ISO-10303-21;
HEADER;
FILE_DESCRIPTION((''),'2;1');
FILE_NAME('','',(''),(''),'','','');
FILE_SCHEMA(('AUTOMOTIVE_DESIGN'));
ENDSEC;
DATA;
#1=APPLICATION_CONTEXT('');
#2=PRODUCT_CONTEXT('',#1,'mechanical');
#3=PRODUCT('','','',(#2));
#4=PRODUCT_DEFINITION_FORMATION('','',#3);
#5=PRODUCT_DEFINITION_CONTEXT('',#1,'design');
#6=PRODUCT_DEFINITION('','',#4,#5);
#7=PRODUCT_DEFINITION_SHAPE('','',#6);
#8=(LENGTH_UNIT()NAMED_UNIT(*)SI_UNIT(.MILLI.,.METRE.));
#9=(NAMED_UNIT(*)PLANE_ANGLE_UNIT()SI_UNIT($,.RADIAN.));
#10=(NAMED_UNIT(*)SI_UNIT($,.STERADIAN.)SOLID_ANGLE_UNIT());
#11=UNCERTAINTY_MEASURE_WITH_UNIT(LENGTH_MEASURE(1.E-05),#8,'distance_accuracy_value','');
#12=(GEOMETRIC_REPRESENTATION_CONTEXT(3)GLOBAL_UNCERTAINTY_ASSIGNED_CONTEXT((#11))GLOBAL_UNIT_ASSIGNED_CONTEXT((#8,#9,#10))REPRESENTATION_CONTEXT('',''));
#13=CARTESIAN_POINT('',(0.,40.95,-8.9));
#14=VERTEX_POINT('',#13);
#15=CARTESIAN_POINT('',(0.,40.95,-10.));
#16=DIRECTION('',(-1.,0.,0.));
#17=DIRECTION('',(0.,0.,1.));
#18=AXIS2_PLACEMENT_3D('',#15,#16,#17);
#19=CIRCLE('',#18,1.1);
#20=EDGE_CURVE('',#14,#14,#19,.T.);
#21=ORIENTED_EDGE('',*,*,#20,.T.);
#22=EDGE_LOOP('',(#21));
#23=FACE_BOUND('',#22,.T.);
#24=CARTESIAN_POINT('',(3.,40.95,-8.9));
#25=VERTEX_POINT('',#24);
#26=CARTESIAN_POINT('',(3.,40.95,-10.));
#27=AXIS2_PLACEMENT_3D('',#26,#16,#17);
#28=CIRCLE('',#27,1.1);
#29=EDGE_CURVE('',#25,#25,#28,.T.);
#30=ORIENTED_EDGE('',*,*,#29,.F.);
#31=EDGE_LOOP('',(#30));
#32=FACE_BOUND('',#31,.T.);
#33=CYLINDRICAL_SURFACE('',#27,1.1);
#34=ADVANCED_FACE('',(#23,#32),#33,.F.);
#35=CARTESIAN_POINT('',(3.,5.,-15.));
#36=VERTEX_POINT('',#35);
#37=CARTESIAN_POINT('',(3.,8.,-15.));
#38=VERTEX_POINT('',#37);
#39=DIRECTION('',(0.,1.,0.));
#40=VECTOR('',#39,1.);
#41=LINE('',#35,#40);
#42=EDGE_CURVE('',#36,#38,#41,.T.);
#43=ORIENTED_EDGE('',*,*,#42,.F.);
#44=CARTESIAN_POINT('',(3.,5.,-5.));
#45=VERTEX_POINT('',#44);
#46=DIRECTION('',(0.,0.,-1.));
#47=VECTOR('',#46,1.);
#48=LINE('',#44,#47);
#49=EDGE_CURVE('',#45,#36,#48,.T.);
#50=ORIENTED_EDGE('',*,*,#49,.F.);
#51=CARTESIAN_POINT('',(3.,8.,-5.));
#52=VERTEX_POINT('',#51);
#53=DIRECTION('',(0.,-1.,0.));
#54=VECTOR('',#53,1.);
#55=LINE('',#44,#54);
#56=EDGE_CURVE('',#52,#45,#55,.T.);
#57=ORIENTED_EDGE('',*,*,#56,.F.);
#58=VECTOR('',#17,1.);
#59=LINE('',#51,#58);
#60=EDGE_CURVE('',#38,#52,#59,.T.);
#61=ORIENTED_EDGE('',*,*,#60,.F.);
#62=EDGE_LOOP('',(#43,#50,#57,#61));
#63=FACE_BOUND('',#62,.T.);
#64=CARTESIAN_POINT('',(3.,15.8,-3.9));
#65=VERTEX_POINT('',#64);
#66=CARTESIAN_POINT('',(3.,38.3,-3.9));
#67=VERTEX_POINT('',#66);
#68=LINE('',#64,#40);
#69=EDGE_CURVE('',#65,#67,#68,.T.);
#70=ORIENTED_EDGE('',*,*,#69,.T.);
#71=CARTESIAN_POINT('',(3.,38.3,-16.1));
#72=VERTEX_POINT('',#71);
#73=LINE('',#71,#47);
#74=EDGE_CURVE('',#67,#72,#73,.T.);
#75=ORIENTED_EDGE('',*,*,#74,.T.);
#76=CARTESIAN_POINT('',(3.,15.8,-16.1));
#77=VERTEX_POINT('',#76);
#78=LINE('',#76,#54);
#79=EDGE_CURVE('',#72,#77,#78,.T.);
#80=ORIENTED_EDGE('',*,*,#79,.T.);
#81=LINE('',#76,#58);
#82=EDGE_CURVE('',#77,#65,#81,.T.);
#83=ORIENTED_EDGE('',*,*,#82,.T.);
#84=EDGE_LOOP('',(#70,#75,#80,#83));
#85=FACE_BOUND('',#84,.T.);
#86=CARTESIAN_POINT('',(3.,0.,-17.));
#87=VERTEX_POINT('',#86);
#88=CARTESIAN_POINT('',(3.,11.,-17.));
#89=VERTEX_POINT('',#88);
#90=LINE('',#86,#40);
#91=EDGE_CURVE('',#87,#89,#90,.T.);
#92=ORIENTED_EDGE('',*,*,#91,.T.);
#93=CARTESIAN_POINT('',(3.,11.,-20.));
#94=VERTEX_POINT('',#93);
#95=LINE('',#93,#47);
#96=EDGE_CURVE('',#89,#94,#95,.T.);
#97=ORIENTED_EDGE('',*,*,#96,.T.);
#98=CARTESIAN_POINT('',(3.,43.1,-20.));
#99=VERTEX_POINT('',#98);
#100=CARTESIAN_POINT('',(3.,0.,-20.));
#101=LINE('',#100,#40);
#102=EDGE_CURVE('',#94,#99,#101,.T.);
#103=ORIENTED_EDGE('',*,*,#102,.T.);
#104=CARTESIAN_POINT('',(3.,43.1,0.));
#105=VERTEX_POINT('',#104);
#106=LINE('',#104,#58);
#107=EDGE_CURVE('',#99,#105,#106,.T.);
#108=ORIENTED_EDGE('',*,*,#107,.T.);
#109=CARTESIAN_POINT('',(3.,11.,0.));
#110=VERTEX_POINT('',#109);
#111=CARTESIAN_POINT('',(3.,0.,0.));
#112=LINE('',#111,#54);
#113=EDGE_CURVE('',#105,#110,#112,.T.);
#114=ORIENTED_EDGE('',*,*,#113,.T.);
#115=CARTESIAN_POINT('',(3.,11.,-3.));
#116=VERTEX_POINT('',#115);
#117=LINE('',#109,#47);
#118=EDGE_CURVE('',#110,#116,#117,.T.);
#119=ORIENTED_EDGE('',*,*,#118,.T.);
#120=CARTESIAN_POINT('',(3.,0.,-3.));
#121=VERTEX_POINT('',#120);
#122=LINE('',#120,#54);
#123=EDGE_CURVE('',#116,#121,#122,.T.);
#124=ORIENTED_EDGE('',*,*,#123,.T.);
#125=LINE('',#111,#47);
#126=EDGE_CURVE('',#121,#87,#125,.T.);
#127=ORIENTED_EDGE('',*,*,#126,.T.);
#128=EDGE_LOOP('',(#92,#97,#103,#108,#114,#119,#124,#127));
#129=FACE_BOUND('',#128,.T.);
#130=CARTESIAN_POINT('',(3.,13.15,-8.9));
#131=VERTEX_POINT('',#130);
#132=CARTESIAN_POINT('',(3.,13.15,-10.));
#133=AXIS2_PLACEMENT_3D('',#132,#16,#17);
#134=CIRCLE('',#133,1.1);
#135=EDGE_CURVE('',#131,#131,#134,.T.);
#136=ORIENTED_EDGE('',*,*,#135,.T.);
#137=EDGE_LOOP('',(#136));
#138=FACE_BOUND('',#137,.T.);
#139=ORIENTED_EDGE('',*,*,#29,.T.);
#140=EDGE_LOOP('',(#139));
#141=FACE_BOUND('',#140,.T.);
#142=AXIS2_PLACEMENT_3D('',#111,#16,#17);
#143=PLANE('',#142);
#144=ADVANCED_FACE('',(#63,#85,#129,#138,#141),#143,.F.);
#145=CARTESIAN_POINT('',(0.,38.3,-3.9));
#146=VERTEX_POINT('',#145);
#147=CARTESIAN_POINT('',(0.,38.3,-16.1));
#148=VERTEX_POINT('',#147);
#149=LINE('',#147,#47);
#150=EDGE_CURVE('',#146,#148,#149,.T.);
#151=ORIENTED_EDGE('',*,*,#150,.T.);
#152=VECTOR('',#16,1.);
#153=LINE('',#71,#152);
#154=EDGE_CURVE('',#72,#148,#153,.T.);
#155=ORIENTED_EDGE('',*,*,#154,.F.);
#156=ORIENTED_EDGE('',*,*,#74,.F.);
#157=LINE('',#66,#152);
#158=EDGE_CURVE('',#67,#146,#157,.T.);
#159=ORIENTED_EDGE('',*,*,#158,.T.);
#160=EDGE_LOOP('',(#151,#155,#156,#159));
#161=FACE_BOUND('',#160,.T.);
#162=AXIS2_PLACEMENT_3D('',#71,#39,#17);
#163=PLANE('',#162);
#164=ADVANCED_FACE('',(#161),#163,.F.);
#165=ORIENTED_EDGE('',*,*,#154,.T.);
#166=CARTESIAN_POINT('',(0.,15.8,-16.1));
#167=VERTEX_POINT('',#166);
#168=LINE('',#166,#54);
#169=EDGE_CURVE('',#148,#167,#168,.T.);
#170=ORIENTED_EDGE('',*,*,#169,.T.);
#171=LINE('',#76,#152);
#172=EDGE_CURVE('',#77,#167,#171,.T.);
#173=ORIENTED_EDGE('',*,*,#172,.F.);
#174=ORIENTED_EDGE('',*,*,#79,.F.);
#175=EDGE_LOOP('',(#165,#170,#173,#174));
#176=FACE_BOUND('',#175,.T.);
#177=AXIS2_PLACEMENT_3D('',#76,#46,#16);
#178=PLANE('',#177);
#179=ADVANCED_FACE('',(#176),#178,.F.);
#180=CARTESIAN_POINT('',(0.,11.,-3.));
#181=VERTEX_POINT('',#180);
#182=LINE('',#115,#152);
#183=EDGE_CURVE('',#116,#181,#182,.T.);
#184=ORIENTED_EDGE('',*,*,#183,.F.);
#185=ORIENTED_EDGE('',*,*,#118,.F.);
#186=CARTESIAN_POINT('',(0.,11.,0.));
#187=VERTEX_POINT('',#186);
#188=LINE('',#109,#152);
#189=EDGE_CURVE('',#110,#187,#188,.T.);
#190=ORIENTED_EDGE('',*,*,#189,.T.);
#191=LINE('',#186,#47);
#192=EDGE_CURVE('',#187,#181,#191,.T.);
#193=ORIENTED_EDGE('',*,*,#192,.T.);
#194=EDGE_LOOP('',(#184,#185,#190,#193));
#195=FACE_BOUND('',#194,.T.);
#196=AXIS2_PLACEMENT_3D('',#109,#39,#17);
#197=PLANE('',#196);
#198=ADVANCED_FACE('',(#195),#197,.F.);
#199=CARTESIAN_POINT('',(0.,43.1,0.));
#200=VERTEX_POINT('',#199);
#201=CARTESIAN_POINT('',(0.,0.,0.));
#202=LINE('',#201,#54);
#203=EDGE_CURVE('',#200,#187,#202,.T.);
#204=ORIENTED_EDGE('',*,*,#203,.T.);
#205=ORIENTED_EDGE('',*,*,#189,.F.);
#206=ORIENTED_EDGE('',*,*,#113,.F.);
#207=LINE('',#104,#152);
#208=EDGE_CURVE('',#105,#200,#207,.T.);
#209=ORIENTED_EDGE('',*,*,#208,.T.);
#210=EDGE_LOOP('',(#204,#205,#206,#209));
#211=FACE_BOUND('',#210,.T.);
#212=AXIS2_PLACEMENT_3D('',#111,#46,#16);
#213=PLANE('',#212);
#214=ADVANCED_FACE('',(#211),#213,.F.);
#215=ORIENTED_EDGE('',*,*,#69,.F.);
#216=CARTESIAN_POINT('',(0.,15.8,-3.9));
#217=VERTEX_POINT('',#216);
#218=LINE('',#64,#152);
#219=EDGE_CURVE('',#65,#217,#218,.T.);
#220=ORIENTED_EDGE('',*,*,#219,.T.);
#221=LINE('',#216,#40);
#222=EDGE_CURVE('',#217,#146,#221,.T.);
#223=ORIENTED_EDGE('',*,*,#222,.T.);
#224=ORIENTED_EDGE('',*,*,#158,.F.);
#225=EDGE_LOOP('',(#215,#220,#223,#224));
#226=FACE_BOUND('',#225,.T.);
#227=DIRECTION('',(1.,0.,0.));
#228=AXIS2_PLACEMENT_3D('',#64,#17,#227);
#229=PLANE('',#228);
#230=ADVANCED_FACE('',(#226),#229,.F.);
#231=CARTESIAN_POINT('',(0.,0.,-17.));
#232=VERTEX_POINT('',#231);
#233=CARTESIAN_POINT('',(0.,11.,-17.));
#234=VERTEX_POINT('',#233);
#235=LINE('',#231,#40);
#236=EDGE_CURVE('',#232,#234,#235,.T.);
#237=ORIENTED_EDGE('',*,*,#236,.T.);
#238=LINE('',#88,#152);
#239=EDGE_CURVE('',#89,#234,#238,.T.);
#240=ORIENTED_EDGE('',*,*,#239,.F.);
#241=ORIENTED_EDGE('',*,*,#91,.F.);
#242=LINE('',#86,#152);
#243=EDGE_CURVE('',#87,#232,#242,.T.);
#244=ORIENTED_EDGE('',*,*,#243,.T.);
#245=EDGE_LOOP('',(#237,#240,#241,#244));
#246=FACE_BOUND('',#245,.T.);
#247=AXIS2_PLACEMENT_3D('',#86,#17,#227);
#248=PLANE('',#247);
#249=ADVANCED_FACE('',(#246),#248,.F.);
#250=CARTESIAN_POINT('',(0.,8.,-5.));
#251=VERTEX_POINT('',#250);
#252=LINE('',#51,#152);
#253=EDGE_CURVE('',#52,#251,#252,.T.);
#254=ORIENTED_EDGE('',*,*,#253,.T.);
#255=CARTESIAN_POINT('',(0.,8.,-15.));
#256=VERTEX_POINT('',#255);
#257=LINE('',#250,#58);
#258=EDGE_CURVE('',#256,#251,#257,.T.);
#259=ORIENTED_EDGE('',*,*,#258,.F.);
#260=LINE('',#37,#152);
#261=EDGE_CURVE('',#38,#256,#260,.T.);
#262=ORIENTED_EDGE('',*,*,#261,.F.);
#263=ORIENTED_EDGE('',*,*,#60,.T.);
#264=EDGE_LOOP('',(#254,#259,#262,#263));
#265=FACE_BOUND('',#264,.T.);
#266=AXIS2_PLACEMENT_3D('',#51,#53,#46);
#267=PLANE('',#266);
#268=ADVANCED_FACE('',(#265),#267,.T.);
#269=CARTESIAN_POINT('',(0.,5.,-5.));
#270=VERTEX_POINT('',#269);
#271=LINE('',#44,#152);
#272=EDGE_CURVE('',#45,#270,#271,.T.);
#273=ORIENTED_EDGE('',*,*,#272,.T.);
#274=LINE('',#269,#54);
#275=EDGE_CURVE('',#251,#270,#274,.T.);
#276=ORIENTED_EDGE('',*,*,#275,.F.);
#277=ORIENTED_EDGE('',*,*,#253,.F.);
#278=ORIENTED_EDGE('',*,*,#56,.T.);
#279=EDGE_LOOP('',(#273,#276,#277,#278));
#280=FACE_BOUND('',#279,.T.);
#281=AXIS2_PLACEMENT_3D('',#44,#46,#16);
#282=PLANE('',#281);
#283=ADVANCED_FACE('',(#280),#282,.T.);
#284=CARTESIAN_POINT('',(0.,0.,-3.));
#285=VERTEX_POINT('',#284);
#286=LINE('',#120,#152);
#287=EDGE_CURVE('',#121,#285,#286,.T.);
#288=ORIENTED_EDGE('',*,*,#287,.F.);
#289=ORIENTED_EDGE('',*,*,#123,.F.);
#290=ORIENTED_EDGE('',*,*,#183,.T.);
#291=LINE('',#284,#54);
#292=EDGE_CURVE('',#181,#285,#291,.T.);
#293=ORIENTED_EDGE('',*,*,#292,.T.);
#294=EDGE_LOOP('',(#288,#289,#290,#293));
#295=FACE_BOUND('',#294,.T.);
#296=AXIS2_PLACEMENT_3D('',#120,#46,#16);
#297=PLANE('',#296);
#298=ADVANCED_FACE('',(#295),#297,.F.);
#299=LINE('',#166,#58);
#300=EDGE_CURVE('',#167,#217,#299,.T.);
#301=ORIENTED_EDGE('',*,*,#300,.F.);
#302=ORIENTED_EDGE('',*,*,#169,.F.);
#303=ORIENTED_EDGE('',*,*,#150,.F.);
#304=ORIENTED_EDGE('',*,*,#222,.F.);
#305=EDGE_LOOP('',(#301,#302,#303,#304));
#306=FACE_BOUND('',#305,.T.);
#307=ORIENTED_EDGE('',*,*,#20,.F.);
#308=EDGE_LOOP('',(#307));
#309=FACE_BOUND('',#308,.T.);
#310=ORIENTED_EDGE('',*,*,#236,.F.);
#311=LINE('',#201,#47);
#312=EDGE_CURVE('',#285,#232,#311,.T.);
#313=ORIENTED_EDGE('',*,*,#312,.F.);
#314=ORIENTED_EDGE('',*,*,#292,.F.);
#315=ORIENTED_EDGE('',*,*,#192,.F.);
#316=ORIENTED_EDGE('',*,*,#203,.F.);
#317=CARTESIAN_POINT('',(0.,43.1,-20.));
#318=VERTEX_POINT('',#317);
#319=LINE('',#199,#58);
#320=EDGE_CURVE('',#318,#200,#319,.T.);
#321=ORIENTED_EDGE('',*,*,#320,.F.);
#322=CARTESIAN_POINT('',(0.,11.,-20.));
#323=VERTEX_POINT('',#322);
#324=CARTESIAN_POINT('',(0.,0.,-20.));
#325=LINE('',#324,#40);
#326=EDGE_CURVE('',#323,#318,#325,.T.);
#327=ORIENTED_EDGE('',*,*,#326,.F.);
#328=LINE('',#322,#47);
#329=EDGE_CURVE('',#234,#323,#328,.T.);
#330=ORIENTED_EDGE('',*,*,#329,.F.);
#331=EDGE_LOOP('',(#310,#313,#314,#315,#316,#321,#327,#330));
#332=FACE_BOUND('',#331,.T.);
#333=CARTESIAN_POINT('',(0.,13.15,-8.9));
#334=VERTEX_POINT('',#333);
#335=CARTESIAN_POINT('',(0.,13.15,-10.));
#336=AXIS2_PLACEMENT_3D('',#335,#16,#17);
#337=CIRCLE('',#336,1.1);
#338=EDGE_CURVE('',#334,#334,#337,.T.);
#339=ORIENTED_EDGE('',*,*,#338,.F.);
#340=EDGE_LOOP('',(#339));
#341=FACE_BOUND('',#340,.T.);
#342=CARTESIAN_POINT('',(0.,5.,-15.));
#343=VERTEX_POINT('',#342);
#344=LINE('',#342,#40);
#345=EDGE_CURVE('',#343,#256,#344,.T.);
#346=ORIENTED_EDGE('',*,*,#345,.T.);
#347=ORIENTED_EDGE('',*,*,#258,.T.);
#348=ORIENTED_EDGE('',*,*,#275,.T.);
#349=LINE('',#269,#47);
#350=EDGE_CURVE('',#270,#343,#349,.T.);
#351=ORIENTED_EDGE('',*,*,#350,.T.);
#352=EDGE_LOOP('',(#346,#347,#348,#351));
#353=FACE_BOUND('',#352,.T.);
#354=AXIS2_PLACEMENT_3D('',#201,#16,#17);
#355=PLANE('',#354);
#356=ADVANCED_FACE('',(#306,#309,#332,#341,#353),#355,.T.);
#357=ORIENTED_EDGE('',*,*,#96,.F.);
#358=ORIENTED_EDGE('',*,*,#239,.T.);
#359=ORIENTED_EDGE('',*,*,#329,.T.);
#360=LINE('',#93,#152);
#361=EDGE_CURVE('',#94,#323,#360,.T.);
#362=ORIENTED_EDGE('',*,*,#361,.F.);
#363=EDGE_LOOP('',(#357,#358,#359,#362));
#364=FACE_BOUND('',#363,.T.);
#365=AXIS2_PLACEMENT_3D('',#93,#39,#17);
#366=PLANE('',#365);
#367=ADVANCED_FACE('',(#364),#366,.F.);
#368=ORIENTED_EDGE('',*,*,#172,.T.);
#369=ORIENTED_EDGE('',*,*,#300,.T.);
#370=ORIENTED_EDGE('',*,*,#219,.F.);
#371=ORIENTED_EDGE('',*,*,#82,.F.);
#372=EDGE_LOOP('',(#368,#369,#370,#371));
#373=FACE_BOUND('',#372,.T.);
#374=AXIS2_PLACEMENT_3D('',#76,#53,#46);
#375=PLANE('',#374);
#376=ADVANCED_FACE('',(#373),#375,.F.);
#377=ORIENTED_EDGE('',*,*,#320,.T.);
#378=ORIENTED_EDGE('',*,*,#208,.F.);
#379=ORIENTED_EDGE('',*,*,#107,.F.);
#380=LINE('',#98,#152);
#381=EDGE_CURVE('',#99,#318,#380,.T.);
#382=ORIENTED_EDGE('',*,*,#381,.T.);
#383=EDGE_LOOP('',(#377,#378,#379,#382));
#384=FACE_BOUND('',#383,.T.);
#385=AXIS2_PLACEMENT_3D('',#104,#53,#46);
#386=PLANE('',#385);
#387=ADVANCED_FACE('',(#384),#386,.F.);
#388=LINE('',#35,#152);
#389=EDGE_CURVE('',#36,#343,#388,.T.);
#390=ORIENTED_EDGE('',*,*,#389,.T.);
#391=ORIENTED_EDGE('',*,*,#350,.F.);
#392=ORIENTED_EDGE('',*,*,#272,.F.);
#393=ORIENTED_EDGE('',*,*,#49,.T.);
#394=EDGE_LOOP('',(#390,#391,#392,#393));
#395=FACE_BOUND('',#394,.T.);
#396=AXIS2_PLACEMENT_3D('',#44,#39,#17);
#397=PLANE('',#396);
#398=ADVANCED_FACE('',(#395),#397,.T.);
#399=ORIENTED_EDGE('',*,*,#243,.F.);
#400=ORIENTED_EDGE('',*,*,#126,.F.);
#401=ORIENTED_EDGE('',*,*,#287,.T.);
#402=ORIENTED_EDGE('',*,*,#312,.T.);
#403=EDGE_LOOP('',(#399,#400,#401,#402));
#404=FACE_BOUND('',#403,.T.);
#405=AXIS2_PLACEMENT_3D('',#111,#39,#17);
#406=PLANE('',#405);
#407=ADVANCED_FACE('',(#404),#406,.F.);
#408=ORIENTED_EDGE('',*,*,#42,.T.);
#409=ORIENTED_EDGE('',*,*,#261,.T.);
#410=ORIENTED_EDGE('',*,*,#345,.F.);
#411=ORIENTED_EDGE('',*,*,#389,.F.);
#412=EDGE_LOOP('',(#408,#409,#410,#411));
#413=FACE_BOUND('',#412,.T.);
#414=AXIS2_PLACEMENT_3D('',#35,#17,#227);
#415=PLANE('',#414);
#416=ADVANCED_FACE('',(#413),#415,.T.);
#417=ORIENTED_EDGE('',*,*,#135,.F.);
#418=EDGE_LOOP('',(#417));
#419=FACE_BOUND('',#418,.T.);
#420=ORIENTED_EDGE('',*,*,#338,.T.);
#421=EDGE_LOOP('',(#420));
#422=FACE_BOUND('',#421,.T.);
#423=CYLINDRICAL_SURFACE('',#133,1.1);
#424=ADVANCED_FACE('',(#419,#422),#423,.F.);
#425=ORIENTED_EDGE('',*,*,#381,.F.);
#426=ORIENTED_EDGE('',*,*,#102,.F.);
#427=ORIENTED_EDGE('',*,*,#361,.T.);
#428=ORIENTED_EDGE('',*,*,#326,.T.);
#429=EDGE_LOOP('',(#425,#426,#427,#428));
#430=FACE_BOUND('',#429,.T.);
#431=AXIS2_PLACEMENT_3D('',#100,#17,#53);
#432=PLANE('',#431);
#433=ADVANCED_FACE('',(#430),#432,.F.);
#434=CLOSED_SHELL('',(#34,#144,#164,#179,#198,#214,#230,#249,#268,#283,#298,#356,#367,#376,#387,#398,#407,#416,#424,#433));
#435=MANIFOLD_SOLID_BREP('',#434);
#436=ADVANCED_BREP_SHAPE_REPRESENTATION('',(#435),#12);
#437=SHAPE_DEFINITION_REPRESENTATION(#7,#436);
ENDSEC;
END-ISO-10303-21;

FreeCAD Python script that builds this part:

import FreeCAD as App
import Part
import Sketcher
Q = App.Units.Quantity

doc = App.newDocument("Part")
body = doc.addObject("PartDesign::Body", "Body")

sketch1 = body.newObject("Sketcher::SketchObject", "Sketch")
sketch1.AttachmentSupport = (doc.getObject("YZ_Plane"), [""])
sketch1.MapMode = "FlatFace"
sketch1.addGeometry(Part.LineSegment(App.Vector(43.1, 0, 0), App.Vector(0, 0, 0)), False)
sketch1.addGeometry(Part.LineSegment(App.Vector(0, 0, 0), App.Vector(0, -20, 0)), False)
sketch1.addGeometry(Part.LineSegment(App.Vector(0, -20, 0), App.Vector(43.1, -20, 0)), False)
sketch1.addGeometry(Part.LineSegment(App.Vector(43.1, -20, 0), App.Vector(43.1, 0, 0)), False)
sketch1.addGeometry(Part.LineSegment(App.Vector(5, -15, 0), App.Vector(5, -5, 0)), False)
sketch1.addGeometry(Part.LineSegment(App.Vector(5, -5, 0), App.Vector(8, -5, 0)), False)
sketch1.addGeometry(Part.LineSegment(App.Vector(8, -5, 0), App.Vector(8, -15, 0)), False)
sketch1.addGeometry(Part.LineSegment(App.Vector(8, -15, 0), App.Vector(5, -15, 0)), False)
sketch1.addConstraint(Sketcher.Constraint("Coincident", 0, 2, 1, 1))
sketch1.addConstraint(Sketcher.Constraint("Coincident", 1, 2, 2, 1))
sketch1.addConstraint(Sketcher.Constraint("Coincident", 2, 2, 3, 1))
sketch1.addConstraint(Sketcher.Constraint("Coincident", 3, 2, 0, 1))
sketch1.addConstraint(Sketcher.Constraint("Coincident", 4, 2, 5, 1))
sketch1.addConstraint(Sketcher.Constraint("Coincident", 5, 2, 6, 1))
sketch1.addConstraint(Sketcher.Constraint("Coincident", 6, 2, 7, 1))
sketch1.addConstraint(Sketcher.Constraint("Coincident", 7, 2, 4, 1))
sketch1.addConstraint(Sketcher.Constraint("Horizontal", 0))
sketch1.addConstraint(Sketcher.Constraint("Vertical", 1))
sketch1.addConstraint(Sketcher.Constraint("Horizontal", 2))
sketch1.addConstraint(Sketcher.Constraint("Vertical", 3))
sketch1.addConstraint(Sketcher.Constraint("Vertical", 4))
sketch1.addConstraint(Sketcher.Constraint("Horizontal", 5))
sketch1.addConstraint(Sketcher.Constraint("Vertical", 6))
sketch1.addConstraint(Sketcher.Constraint("Horizontal", 7))
sketch1.addConstraint(Sketcher.Constraint("Coincident", 0, 2, -1, 1))
sketch1.addConstraint(Sketcher.Constraint("DistanceX", 5, 1, 5, 2, Q("3 mm")))
sketch1.addConstraint(Sketcher.Constraint("DistanceY", 1, 2, 1, 1, Q("20 mm")))
sketch1.addConstraint(Sketcher.Constraint("DistanceY", 4, 1, 4, 2, Q("10 mm")))
sketch1.addConstraint(Sketcher.Constraint("DistanceX", 0, 2, 0, 1, Q("43.1 mm")))
sketch1.addConstraint(Sketcher.Constraint("DistanceX", -1, 1, 4, 2, Q("5 mm")))
sketch1.addConstraint(Sketcher.Constraint("DistanceY", 4, 2, -1, 1, Q("5 mm")))
pad1 = body.newObject("PartDesign::Pad", "Pad")
pad1.Profile = sketch1
pad1.Length = 3

sketch2 = body.newObject("Sketcher::SketchObject", "Sketch001")
sketch2.AttachmentSupport = (doc.getObject("YZ_Plane"), [""])
sketch2.MapMode = "FlatFace"
sketch2.addGeometry(Part.Circle(App.Vector(41, -10, 0), App.Vector(0, 0, 1), 1.1), False)
sketch2.addGeometry(Part.Circle(App.Vector(13.2, -10, 0), App.Vector(0, 0, 1), 1.1), False)
sketch2.addGeometry(Part.LineSegment(App.Vector(38.3, -16.1, 0), App.Vector(15.8, -16.1, 0)), False)
sketch2.addGeometry(Part.LineSegment(App.Vector(15.8, -16.1, 0), App.Vector(15.8, -3.9, 0)), False)
sketch2.addGeometry(Part.LineSegment(App.Vector(15.8, -3.9, 0), App.Vector(38.3, -3.9, 0)), False)
sketch2.addGeometry(Part.LineSegment(App.Vector(38.3, -3.9, 0), App.Vector(38.3, -16.1, 0)), False)
sketch2.addGeometry(Part.LineSegment(App.Vector(11, -20, 0), App.Vector(0, -20, 0)), False)
sketch2.addGeometry(Part.LineSegment(App.Vector(0, -20, 0), App.Vector(0, -17, 0)), False)
sketch2.addGeometry(Part.LineSegment(App.Vector(0, -17, 0), App.Vector(11, -17, 0)), False)
sketch2.addGeometry(Part.LineSegment(App.Vector(11, -17, 0), App.Vector(11, -20, 0)), False)
sketch2.addGeometry(Part.LineSegment(App.Vector(11, -3, 0), App.Vector(0, -3, 0)), False)
sketch2.addGeometry(Part.LineSegment(App.Vector(0, -3, 0), App.Vector(0, 0, 0)), False)
sketch2.addGeometry(Part.LineSegment(App.Vector(0, 0, 0), App.Vector(11, 0, 0)), False)
sketch2.addGeometry(Part.LineSegment(App.Vector(11, 0, 0), App.Vector(11, -3, 0)), False)
sketch2.addConstraint(Sketcher.Constraint("Coincident", 2, 2, 3, 1))
sketch2.addConstraint(Sketcher.Constraint("Coincident", 3, 2, 4, 1))
sketch2.addConstraint(Sketcher.Constraint("Coincident", 4, 2, 5, 1))
sketch2.addConstraint(Sketcher.Constraint("Coincident", 5, 2, 2, 1))
sketch2.addConstraint(Sketcher.Constraint("Coincident", 6, 2, 7, 1))
sketch2.addConstraint(Sketcher.Constraint("Coincident", 7, 2, 8, 1))
sketch2.addConstraint(Sketcher.Constraint("Coincident", 8, 2, 9, 1))
sketch2.addConstraint(Sketcher.Constraint("Coincident", 9, 2, 6, 1))
sketch2.addConstraint(Sketcher.Constraint("Coincident", 10, 2, 11, 1))
sketch2.addConstraint(Sketcher.Constraint("Coincident", 11, 2, 12, 1))
sketch2.addConstraint(Sketcher.Constraint("Coincident", 12, 2, 13, 1))
sketch2.addConstraint(Sketcher.Constraint("Coincident", 13, 2, 10, 1))
sketch2.addConstraint(Sketcher.Constraint("Horizontal", 2))
sketch2.addConstraint(Sketcher.Constraint("Vertical", 3))
sketch2.addConstraint(Sketcher.Constraint("Horizontal", 4))
sketch2.addConstraint(Sketcher.Constraint("Vertical", 5))
sketch2.addConstraint(Sketcher.Constraint("Horizontal", 6))
sketch2.addConstraint(Sketcher.Constraint("Vertical", 7))
sketch2.addConstraint(Sketcher.Constraint("Horizontal", 8))
sketch2.addConstraint(Sketcher.Constraint("Vertical", 9))
sketch2.addConstraint(Sketcher.Constraint("Horizontal", 10))
sketch2.addConstraint(Sketcher.Constraint("Vertical", 11))
sketch2.addConstraint(Sketcher.Constraint("Horizontal", 12))
sketch2.addConstraint(Sketcher.Constraint("Vertical", 13))
sketch2.addConstraint(Sketcher.Constraint("Coincident", 11, 2, -1, 1))
sketch2.addConstraint(Sketcher.Constraint("Equal", 0, 1))
sketch2.addConstraint(Sketcher.Constraint("PointOnObject", 6, 2, -2))
sketch2.addConstraint(Sketcher.Constraint("Horizontal", 0, 3, 1, 3))
sketch2.addConstraint(Sketcher.Constraint("Vertical", 9, 2, 12, 2))
sketch2.addConstraint(Sketcher.Constraint("Equal", 9, 11))
sketch2.addConstraint(Sketcher.Constraint("Diameter", 0, Q("2.2 mm")))
sketch2.addConstraint(Sketcher.Constraint("DistanceX", 6, 2, 6, 1, Q("11 mm")))
sketch2.addConstraint(Sketcher.Constraint("DistanceY", 7, 1, 7, 2, Q("3 mm")))
sketch2.addConstraint(Sketcher.Constraint("DistanceX", 2, 2, 2, 1, Q("22.5 mm")))
sketch2.addConstraint(Sketcher.Constraint("DistanceY", 3, 1, 3, 2, Q("12.2 mm")))
sketch2.addConstraint(Sketcher.Constraint("DistanceY", 0, 3, -1, 1, Q("10 mm")))
sketch2.addConstraint(Sketcher.Constraint("DistanceY", 6, 2, -1, 1, Q("20 mm")))
sketch2.addConstraint(Sketcher.Constraint("DistanceX", -1, 1, 2, 2, Q("15.8 mm")))
sketch2.addConstraint(Sketcher.Constraint("DistanceY", 2, 2, -1, 1, Q("16.1 mm")))
sketch2.addConstraint(Sketcher.Constraint("DistanceX", 1, 3, 0, 3, Q("27.8 mm")))
sketch2.addConstraint(Sketcher.Constraint("DistanceX", -1, 1, 0, 3, Q("40.95 mm")))
pocket1 = body.newObject("PartDesign::Pocket", "Pocket")
pocket1.Profile = sketch2
pocket1.Length = 3
pocket1.Reversed = True

doc.recompute()
